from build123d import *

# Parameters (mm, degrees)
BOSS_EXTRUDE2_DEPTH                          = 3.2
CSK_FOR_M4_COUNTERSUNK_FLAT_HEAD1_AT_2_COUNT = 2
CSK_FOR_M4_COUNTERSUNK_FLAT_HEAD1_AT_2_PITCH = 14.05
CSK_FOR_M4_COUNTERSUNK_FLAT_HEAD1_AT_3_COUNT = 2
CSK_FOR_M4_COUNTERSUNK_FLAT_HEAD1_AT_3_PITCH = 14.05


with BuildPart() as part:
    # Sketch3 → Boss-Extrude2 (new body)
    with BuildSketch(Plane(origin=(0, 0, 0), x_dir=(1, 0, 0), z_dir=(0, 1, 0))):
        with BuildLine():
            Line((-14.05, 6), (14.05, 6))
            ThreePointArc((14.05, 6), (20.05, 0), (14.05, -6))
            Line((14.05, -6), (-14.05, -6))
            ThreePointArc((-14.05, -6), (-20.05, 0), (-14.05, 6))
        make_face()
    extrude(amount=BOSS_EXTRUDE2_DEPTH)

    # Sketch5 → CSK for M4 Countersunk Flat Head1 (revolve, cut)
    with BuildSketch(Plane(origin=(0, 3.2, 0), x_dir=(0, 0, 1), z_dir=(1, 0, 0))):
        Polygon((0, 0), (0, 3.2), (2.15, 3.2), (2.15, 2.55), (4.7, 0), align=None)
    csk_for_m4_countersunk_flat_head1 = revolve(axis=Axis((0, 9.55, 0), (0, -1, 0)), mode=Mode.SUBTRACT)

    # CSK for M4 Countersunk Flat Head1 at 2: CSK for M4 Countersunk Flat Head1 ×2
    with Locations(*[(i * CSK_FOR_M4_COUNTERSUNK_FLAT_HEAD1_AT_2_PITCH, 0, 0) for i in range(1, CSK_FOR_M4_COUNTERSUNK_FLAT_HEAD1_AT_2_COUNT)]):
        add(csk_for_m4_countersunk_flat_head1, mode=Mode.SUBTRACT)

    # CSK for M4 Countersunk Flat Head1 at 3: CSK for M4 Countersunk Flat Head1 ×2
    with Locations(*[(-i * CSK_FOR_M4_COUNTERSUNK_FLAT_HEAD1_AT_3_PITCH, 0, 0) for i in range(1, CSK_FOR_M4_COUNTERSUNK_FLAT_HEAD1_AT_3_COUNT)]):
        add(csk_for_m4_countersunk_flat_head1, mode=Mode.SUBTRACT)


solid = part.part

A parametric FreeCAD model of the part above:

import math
import FreeCAD as App
import Part
import Sketcher
from FreeCAD import Vector
Q = App.Units.Quantity


def add_polygon(sketch, points):
    """Adds a closed chain of lines whose ends are joined by coincident constraints."""
    first, n = sketch.GeometryCount, len(points)
    for a, b in zip(points, points[1:] + points[:1]):
        sketch.addGeometry(Part.LineSegment(App.Vector(*a, 0), App.Vector(*b, 0)), False)
    for i in range(n):
        sketch.addConstraint(Sketcher.Constraint("Coincident", first + i, 2, first + (i + 1) % n, 1))

doc = App.newDocument("Part")
body = doc.addObject("PartDesign::Body", "Body")

# Sketch on XZ plane
sketch1 = doc.addObject("Sketcher::SketchObject", "Sketch")
body.addObject(sketch1)
sketch1.AttachmentSupport = (doc.XZ_Plane, [""])
sketch1.MapMode = "FlatFace"
sketch1.addGeometry(Part.LineSegment(Vector(14.05, -6, 0), Vector(-14.05, -6, 0)), False)
sketch1.addGeometry(Part.ArcOfCircle(Part.Circle(Vector(-14.05, 0, 0), Vector(0, 0, 1), 6), math.radians(90), math.radians(270)), False)
sketch1.addGeometry(Part.LineSegment(Vector(-14.05, 6, 0), Vector(14.05, 6, 0)), False)
sketch1.addGeometry(Part.ArcOfCircle(Part.Circle(Vector(14.05, 0, 0), Vector(0, 0, 1), 6), math.radians(-90), math.radians(90)), False)
sketch1.addConstraint(Sketcher.Constraint("Tangent", 0, 2, 1, 2))
sketch1.addConstraint(Sketcher.Constraint("Tangent", 1, 1, 2, 1))
sketch1.addConstraint(Sketcher.Constraint("Tangent", 2, 2, 3, 2))
sketch1.addConstraint(Sketcher.Constraint("Tangent", 3, 1, 0, 1))
sketch1.addConstraint(Sketcher.Constraint("Horizontal", 0))
sketch1.addConstraint(Sketcher.Constraint("Horizontal", 2))
sketch1.addConstraint(Sketcher.Constraint("Symmetric", 1, 3, 3, 3, -1, 1))
sketch1.addConstraint(Sketcher.Constraint("Radius", 1, Q("6 mm")))
sketch1.addConstraint(Sketcher.Constraint("DistanceX", 0, 2, 0, 1, Q("28.1 mm")))
pad1 = doc.addObject("PartDesign::Pad", "Pad")
body.addObject(pad1)
pad1.Profile = sketch1
pad1.Length = 3.2
pad1.Reversed = True

# Sketch on YZ plane
sketch2 = doc.addObject("Sketcher::SketchObject", "Sketch001")
body.addObject(sketch2)
sketch2.AttachmentSupport = (doc.YZ_Plane, [""])
sketch2.MapMode = "FlatFace"
add_polygon(sketch2, [(0, 0), (3.2, 0), (3.2, 4.7), (0.65, 2.15), (0, 2.15)])  # lines 0-4
sketch2.addConstraint(Sketcher.Constraint("Horizontal", 0))
sketch2.addConstraint(Sketcher.Constraint("Vertical", 1))
sketch2.addConstraint(Sketcher.Constraint("Horizontal", 3))
sketch2.addConstraint(Sketcher.Constraint("Vertical", 4))
sketch2.addConstraint(Sketcher.Constraint("Coincident", 4, 2, -1, 1))
sketch2.addConstraint(Sketcher.Constraint("Angle", 2, Q("-135 deg")))
sketch2.addConstraint(Sketcher.Constraint("DistanceX", 0, 1, 0, 2, Q("3.2 mm")))
sketch2.addConstraint(Sketcher.Constraint("DistanceY", 1, 1, 1, 2, Q("4.7 mm")))
sketch2.addConstraint(Sketcher.Constraint("DistanceX", 3, 2, 3, 1, Q("0.65 mm")))
groove = doc.addObject("PartDesign::Groove", "Groove")
body.addObject(groove)
groove.Profile = sketch2
groove.ReferenceAxis = (sketch2, ["H_Axis"])
groove.Angle = 360
doc.recompute()

linearpattern = doc.addObject("PartDesign::LinearPattern", "LinearPattern")
body.addObject(linearpattern)
linearpattern.Originals = [groove]
linearpattern.Direction = (doc.X_Axis, [""])
linearpattern.Mode = "offset"
linearpattern.Offset = 14.05
linearpattern.Occurrences = 2
body.Tip = linearpattern
doc.recompute()

linearpattern2 = doc.addObject("PartDesign::LinearPattern", "LinearPattern001")
body.addObject(linearpattern2)
linearpattern2.Originals = [groove]
linearpattern2.Direction = (doc.X_Axis, [""])
linearpattern2.Mode = "offset"
linearpattern2.Offset = 14.05
linearpattern2.Occurrences = 2
linearpattern2.Reversed = True
body.Tip = linearpattern2

doc.recompute()
